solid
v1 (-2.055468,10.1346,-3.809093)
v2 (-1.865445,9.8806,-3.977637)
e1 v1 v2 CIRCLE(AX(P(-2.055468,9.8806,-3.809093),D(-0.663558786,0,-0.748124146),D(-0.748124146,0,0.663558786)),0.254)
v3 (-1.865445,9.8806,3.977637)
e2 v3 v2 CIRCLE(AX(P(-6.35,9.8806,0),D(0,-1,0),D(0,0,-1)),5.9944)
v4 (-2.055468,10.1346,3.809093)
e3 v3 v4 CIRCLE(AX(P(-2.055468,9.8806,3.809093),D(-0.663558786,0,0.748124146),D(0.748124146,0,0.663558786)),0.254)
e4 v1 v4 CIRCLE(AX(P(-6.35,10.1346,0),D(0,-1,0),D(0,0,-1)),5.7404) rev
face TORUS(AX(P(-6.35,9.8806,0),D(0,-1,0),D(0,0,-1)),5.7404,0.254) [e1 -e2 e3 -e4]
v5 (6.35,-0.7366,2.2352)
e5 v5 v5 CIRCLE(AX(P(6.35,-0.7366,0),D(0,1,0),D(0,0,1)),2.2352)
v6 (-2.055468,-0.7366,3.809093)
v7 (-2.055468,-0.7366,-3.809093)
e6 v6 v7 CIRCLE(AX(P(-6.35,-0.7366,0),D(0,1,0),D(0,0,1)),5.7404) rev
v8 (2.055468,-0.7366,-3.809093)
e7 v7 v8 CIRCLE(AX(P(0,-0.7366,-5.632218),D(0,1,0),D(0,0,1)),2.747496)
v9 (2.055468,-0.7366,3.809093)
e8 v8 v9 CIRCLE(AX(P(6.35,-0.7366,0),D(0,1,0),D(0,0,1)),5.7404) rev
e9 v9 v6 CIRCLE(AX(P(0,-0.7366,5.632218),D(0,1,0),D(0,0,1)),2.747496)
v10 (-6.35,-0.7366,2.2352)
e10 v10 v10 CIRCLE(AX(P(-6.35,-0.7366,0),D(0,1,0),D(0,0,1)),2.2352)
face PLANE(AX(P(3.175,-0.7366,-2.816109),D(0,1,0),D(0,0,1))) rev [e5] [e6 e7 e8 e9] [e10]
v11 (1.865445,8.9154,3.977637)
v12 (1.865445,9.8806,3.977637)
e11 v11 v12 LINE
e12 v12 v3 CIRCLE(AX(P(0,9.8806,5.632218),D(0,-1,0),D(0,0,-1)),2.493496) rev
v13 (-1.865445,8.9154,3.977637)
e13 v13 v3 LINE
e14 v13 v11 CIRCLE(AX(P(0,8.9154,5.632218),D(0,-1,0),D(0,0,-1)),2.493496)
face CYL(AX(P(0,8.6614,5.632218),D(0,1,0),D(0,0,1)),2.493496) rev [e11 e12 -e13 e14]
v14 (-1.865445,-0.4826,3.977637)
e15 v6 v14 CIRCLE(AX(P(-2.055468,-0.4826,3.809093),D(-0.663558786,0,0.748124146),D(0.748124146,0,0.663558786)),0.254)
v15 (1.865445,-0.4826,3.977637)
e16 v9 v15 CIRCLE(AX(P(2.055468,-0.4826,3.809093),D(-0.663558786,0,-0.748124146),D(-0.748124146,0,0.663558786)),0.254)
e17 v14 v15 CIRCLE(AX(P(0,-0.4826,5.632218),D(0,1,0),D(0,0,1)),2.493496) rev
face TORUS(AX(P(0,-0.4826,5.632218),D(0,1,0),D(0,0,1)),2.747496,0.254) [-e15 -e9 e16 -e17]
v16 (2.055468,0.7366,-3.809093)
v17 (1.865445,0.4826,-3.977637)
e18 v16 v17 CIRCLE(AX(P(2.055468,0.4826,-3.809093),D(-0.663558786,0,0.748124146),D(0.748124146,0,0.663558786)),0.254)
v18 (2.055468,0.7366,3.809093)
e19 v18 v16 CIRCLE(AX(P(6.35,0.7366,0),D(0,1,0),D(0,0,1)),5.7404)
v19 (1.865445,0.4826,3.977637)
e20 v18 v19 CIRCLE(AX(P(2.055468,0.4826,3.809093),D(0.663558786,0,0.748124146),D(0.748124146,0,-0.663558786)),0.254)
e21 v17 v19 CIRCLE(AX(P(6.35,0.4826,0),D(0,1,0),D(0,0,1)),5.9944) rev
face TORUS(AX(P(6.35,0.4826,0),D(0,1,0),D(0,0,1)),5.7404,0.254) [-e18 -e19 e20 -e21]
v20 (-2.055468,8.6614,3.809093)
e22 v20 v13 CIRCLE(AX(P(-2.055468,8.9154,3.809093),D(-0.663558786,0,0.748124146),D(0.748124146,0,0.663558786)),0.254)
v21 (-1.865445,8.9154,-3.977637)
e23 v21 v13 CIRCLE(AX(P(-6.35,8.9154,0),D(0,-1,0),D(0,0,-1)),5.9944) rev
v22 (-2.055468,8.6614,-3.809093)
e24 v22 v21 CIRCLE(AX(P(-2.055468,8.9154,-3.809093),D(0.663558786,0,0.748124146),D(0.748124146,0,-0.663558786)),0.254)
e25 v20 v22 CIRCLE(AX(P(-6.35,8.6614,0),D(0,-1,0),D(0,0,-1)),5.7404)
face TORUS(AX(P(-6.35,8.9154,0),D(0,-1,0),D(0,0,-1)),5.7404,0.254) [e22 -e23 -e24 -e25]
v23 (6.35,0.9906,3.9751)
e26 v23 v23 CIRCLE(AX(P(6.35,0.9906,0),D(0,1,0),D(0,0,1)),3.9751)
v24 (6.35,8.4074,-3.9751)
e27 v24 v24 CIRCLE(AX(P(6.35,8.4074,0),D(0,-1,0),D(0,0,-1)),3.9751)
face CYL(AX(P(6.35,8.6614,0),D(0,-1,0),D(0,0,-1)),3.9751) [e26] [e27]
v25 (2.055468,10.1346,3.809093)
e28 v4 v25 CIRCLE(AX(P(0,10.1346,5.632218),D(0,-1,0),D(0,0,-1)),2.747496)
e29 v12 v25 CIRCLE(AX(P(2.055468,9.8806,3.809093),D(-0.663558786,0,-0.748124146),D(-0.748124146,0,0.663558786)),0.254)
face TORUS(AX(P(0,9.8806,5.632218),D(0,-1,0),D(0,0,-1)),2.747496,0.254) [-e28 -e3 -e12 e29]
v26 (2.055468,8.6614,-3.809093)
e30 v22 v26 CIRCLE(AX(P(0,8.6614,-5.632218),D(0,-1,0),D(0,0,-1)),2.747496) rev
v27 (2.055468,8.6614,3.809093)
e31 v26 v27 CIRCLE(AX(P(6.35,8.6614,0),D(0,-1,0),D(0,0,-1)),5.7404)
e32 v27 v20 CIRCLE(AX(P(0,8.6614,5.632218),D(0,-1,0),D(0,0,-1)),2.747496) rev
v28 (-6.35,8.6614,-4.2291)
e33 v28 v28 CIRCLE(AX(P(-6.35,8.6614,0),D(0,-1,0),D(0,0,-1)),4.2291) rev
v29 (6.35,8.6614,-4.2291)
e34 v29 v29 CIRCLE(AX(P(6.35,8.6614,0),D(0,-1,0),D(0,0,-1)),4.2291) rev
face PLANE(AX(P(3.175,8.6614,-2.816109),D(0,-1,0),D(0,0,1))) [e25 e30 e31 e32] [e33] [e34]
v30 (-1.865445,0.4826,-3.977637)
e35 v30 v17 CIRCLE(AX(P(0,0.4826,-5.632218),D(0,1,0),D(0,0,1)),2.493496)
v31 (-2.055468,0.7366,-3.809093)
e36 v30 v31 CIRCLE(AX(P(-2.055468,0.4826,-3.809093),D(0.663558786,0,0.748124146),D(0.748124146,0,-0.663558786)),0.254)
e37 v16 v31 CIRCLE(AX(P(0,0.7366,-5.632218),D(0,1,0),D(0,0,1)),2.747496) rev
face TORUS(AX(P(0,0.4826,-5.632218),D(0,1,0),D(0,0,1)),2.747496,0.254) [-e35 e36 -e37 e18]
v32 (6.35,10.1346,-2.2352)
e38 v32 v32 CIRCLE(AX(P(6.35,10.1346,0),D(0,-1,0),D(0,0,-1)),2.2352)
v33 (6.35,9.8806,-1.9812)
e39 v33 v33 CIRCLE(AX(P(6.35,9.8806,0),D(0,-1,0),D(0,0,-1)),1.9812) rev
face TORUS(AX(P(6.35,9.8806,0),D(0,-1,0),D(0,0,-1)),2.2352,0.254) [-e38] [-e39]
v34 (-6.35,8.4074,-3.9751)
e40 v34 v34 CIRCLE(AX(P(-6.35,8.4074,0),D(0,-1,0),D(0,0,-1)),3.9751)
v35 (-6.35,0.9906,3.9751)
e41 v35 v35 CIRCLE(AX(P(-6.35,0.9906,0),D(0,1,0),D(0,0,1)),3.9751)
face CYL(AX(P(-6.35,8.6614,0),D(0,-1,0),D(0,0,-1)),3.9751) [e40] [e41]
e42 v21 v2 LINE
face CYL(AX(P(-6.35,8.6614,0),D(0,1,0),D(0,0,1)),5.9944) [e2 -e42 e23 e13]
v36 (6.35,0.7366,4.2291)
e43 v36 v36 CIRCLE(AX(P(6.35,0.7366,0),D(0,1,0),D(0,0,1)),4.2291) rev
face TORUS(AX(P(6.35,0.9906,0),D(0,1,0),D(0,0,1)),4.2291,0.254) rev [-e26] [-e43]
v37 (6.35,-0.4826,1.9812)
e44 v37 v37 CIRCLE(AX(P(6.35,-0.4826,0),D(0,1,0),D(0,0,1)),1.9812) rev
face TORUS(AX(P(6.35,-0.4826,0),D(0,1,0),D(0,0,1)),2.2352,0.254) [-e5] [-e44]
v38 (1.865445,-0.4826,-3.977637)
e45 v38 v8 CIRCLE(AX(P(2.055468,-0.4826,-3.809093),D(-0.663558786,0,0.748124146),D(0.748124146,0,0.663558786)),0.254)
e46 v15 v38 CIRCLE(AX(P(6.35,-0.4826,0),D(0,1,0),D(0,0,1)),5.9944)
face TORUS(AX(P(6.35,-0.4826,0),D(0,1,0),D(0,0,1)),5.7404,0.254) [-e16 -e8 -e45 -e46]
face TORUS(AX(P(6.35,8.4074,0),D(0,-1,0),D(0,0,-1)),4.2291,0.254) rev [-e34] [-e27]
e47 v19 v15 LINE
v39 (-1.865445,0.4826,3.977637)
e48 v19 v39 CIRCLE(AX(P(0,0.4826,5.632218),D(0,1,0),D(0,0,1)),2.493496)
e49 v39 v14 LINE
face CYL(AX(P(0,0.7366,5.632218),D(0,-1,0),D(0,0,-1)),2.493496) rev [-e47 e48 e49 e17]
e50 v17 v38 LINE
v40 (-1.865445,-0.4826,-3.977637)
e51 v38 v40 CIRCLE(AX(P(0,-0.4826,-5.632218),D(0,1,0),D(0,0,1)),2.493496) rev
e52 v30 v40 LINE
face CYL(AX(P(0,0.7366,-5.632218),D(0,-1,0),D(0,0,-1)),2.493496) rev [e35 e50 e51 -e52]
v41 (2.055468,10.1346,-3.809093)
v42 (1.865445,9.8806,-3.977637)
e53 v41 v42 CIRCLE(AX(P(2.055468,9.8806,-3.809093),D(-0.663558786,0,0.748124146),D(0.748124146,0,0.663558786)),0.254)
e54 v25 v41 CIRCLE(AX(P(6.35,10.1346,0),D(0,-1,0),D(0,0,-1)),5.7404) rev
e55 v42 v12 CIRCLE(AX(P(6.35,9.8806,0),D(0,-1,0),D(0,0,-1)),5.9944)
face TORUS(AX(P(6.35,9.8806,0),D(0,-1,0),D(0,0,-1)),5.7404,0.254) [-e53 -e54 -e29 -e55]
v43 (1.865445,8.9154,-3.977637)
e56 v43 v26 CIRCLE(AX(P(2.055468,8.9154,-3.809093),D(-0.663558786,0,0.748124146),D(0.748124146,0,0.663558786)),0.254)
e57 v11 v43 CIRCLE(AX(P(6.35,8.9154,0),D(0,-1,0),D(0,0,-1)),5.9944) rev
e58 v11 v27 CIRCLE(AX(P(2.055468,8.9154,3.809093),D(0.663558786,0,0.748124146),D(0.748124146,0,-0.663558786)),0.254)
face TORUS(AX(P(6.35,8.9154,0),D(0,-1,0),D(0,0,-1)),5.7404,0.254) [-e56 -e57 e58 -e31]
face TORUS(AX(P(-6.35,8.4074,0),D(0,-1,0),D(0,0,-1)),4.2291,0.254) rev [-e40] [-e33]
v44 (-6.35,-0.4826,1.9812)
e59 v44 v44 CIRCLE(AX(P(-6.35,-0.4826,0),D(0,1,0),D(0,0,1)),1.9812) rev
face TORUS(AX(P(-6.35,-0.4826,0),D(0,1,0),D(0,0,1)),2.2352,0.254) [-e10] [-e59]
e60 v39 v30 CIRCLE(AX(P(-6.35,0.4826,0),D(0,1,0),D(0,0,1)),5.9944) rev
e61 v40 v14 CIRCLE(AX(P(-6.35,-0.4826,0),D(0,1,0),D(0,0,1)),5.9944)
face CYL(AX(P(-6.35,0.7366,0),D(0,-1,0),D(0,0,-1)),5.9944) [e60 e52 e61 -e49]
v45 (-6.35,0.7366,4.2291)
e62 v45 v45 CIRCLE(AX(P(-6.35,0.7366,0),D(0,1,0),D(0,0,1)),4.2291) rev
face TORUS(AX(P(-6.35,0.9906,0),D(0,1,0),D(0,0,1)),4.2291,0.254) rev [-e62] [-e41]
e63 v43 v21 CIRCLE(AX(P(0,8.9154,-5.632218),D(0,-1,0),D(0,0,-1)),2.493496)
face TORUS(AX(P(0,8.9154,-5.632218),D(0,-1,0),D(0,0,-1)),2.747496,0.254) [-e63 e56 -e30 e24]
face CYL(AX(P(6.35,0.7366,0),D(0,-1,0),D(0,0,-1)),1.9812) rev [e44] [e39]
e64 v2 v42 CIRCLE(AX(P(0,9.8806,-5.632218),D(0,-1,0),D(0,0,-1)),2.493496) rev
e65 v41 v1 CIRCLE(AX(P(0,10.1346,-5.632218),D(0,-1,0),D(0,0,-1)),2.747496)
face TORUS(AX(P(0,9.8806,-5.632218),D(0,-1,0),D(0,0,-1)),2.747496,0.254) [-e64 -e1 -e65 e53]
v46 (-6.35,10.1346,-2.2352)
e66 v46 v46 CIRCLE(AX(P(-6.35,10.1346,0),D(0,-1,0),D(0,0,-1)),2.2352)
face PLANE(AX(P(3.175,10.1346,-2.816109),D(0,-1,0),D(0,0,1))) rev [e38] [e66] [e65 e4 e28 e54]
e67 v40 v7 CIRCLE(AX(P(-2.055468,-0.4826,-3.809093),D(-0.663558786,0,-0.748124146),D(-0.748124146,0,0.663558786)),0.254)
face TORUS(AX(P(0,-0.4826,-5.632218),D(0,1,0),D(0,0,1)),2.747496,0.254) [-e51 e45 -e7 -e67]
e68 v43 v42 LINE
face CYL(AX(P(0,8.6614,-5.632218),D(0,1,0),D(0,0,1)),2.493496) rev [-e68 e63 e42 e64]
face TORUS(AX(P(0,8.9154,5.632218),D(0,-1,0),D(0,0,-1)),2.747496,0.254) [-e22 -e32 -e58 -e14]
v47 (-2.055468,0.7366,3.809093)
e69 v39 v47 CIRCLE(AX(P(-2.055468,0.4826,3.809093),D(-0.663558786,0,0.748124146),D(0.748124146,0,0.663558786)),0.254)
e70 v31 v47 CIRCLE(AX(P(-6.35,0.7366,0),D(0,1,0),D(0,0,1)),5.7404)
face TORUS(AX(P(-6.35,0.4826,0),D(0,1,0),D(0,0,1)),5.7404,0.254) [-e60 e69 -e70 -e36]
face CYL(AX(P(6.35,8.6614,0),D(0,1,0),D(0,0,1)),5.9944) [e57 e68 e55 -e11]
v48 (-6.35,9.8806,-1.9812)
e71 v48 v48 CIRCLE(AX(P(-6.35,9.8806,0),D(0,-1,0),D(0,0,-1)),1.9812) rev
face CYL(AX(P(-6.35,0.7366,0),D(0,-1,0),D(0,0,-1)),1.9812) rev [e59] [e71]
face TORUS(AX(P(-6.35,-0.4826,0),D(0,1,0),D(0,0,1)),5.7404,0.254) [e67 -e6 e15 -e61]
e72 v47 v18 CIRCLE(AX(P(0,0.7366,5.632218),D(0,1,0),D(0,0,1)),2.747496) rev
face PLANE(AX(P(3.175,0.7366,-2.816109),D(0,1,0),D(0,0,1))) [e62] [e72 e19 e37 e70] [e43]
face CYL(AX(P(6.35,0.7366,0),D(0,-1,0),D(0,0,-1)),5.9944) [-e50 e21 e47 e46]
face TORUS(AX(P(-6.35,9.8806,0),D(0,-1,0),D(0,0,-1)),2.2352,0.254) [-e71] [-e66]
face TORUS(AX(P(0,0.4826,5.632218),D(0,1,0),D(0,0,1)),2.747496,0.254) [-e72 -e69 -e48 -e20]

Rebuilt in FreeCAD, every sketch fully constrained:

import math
import FreeCAD as App
import Part
import Sketcher

V = App.Vector
Q = App.Units.Quantity


def edges_at(feature, points):
    """Names of the edges that pass closest to the given points."""
    edges = feature.Shape.Edges
    near = lambda p: min(range(len(edges)), key=lambda i: edges[i].distToShape(Part.Vertex(*p))[0])
    return sorted({f"Edge{near(p) + 1}" for p in points})

doc = App.newDocument("Part")
body = doc.addObject("PartDesign::Body", "Body")

# Sketch on XZ plane
sketch1 = body.newObject("Sketcher::SketchObject", "Sketch")
sketch1.AttachmentSupport = (doc.getObject("XZ_Plane"), [""])
sketch1.MapMode = "FlatFace"
sketch1.addGeometry(Part.ArcOfCircle(Part.Circle(V(-6.3, 0, 0), V(0, 0, 1), 6), math.radians(42), math.radians(318)), False)
sketch1.addGeometry(Part.ArcOfCircle(Part.Circle(V(0, 5.6, 0), V(0, 0, 1), 2.5), math.radians(-138), math.radians(-42)), False)
sketch1.addGeometry(Part.ArcOfCircle(Part.Circle(V(6.3, 0, 0), V(0, 0, 1), 6), math.radians(-138), math.radians(138)), False)
sketch1.addGeometry(Part.ArcOfCircle(Part.Circle(V(0, -5.6, 0), V(0, 0, 1), 2.5), math.radians(42), math.radians(138)), False)
sketch1.addGeometry(Part.Circle(V(-6.3, 0, 0), V(0, 0, 1), 2), False)
sketch1.addGeometry(Part.Circle(V(6.3, 0, 0), V(0, 0, 1), 2), False)
sketch1.addConstraint(Sketcher.Constraint("Tangent", 0, 1, 1, 1))
sketch1.addConstraint(Sketcher.Constraint("Tangent", 1, 2, 2, 2))
sketch1.addConstraint(Sketcher.Constraint("Tangent", 2, 1, 3, 1))
sketch1.addConstraint(Sketcher.Constraint("Tangent", 3, 2, 0, 2))
sketch1.addConstraint(Sketcher.Constraint("Coincident", 4, 3, 0, 3))
sketch1.addConstraint(Sketcher.Constraint("Coincident", 5, 3, 2, 3))
sketch1.addConstraint(Sketcher.Constraint("Equal", 0, 2))
sketch1.addConstraint(Sketcher.Constraint("Equal", 1, 3))
sketch1.addConstraint(Sketcher.Constraint("Equal", 4, 5))
sketch1.addConstraint(Sketcher.Constraint("Symmetric", 0, 3, 2, 3, -1, 1))
sketch1.addConstraint(Sketcher.Constraint("PointOnObject", 0, 3, -1))
sketch1.addConstraint(Sketcher.Constraint("Diameter", 4, Q("0.156 in")))
sketch1.addConstraint(Sketcher.Constraint("Radius", 0, Q("0.236 in")))
sketch1.addConstraint(Sketcher.Constraint("DistanceX", 0, 3, 2, 3, Q("0.5 in")))
sketch1.addConstraint(Sketcher.Constraint("DistanceY", -1, 1, 0, 1, Q("0.1565999 in")))
pad1 = body.newObject("PartDesign::Pad", "Pad")
pad1.Profile = sketch1
pad1.Length = Q("0.058 in")
pad1.Midplane = True

# Sketch on XZ plane
sketch2 = body.newObject("Sketcher::SketchObject", "Sketch001")
sketch2.AttachmentSupport = (doc.getObject("XZ_Plane"), [""])
sketch2.MapMode = "FlatFace"
sketch2.AttachmentOffset = App.Placement(V(0, 0, -0.029 * 25.4), App.Rotation())
sketch2.addGeometry(Part.Circle(V(6.3, 0, 0), V(0, 0, 1), 4), False)
sketch2.addGeometry(Part.Circle(V(6.3, 0, 0), V(0, 0, 1), 2), False)
sketch2.addGeometry(Part.Circle(V(-6.3, 0, 0), V(0, 0, 1), 4), False)
sketch2.addGeometry(Part.Circle(V(-6.3, 0, 0), V(0, 0, 1), 2), False)
sketch2.addConstraint(Sketcher.Constraint("Coincident", 1, 3, 0, 3))
sketch2.addConstraint(Sketcher.Constraint("Coincident", 3, 3, 2, 3))
sketch2.addConstraint(Sketcher.Constraint("Equal", 0, 2))
sketch2.addConstraint(Sketcher.Constraint("Equal", 1, 3))
sketch2.addConstraint(Sketcher.Constraint("Symmetric", 0, 3, 2, 3, -1, 1))
sketch2.addConstraint(Sketcher.Constraint("PointOnObject", 0, 3, -1))
sketch2.addConstraint(Sketcher.Constraint("Diameter", 0, Q("0.313 in")))
sketch2.addConstraint(Sketcher.Constraint("Diameter", 1, Q("0.156 in")))
sketch2.addConstraint(Sketcher.Constraint("DistanceX", 2, 3, 0, 3, Q("0.5 in")))
pad2 = body.newObject("PartDesign::Pad", "Pad001")
pad2.Profile = sketch2
pad2.Length = Q("0.312 in")
pad2.Reversed = True
doc.recompute()

fillet = body.newObject("PartDesign::Fillet", "Fillet")
fillet.Base = (pad2, edges_at(pad2, [
    (-8.331, -0.737, 0),
    (0, 0.737, 3.139),
    (4.369, -0.737, 0),
    (12.344, 0.737, 0),
    (2.375, 0.737, 0),
    (-10.325, 0.737, 0),
    (0, 0.737, -3.139),
    (12.344, -0.737, 0),
    (0, -0.737, 3.139),
    (-12.344, -0.737, 0),
    (0, -0.737, -3.139),
    (-12.344, 0.737, 0),
]))
fillet.Radius = Q("0.01 in")
doc.recompute()

datumplane = body.newObject("PartDesign::Plane", "DatumPlane")
datumplane.AttachmentSupport = (doc.getObject("XZ_Plane"), [""])
datumplane.MapMode = "FlatFace"
datumplane.AttachmentOffset = App.Placement(V(0, 0, -0.185 * 25.4), App.Rotation())
mirrored = body.newObject("PartDesign::Mirrored", "Mirrored")
mirrored.Originals = [pad1]
mirrored.MirrorPlane = (datumplane, [""])
body.Tip = mirrored
doc.recompute()

fillet2 = body.newObject("PartDesign::Fillet", "Fillet001")
fillet2.Base = (mirrored, edges_at(mirrored, [
    (-8.331, 10.135, 0),
    (0, 8.661, 3.139),
    (4.369, 10.135, 0),
    (12.344, 8.661, 0),
    (2.375, 8.661, 0),
    (-10.325, 8.661, 0),
    (0, 8.661, -3.139),
    (12.344, 10.135, 0),
    (0, 10.135, 3.139),
    (-12.344, 10.135, 0),
    (0, 10.135, -3.139),
    (-12.344, 8.661, 0),
]))
fillet2.Radius = Q("0.01 in")

doc.recompute()
